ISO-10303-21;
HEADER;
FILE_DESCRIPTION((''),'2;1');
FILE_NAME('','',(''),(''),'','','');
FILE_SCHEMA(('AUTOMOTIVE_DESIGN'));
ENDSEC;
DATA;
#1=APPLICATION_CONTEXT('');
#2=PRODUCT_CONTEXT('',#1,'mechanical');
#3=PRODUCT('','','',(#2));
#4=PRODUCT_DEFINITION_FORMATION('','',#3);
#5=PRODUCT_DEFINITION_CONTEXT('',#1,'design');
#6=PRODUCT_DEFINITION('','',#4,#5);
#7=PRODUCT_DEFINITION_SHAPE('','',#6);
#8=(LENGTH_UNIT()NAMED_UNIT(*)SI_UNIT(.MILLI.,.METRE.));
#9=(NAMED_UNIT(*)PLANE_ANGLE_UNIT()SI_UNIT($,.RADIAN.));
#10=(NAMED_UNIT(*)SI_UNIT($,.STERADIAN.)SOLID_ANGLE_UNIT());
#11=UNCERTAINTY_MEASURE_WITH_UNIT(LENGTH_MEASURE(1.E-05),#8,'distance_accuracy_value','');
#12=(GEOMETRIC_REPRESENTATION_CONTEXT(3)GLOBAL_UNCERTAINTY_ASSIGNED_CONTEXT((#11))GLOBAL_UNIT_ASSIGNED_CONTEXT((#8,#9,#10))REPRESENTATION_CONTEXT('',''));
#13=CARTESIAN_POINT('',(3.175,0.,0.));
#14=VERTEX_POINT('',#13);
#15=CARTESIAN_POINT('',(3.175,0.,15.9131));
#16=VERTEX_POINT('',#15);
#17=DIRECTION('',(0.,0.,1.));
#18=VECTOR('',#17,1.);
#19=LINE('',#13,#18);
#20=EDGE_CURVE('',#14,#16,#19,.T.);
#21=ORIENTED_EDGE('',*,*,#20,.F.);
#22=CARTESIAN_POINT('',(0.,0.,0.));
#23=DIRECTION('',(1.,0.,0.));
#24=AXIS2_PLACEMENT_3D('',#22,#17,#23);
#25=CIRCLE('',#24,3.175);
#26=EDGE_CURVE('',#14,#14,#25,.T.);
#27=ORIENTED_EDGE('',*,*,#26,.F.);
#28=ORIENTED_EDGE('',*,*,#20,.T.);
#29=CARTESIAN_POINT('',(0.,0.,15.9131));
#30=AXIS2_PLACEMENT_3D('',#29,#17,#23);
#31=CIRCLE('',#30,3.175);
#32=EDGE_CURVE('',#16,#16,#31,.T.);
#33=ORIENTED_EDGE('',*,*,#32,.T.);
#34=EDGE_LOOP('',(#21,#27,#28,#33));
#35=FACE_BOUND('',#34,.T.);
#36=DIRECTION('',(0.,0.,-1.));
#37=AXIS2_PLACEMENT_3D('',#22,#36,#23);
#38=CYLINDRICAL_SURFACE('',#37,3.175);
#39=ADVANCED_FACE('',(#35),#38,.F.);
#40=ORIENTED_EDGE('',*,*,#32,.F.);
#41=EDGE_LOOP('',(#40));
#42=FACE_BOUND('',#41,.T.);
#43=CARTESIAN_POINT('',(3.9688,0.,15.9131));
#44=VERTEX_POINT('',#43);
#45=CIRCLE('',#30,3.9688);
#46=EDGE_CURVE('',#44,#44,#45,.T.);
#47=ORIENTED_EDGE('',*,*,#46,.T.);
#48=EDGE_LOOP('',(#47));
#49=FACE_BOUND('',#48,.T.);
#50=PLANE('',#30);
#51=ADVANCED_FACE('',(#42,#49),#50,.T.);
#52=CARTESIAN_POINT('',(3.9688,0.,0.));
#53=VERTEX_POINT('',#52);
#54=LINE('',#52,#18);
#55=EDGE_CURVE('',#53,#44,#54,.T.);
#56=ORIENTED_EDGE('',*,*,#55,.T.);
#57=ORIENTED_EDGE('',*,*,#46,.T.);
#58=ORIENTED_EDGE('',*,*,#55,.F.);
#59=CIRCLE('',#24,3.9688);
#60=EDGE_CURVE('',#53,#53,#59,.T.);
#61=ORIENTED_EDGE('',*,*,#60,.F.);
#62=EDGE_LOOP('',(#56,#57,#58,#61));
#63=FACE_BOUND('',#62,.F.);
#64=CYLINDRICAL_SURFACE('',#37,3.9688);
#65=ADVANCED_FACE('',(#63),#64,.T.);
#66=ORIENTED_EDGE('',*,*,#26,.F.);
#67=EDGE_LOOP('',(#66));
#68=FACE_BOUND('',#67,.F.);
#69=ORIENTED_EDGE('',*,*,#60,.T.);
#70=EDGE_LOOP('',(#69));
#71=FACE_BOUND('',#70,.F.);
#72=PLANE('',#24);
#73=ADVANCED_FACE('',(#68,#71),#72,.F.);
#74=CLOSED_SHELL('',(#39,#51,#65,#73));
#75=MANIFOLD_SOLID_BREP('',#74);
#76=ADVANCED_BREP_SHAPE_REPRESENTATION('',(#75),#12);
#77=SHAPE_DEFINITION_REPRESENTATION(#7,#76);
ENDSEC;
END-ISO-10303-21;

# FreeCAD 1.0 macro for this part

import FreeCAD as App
import Part
import Sketcher
Q = App.Units.Quantity

doc = App.newDocument("Part")
body = doc.addObject("PartDesign::Body", "Body")

# Sketch on XY plane
sketch1 = body.newObject("Sketcher::SketchObject", "Sketch")
sketch1.AttachmentSupport = (doc.getObject("XY_Plane"), [""])
sketch1.MapMode = "FlatFace"
sketch1.addGeometry([
    Part.Circle(App.Vector(0, 0, 0), App.Vector(0, 0, 1), 3.9688),
    Part.Circle(App.Vector(0, 0, 0), App.Vector(0, 0, 1), 3.175),
], False)
sketch1.addConstraint([
    Sketcher.Constraint("Coincident", 0, 3, -1, 1),
    Sketcher.Constraint("Coincident", 1, 3, -1, 1),
    Sketcher.Constraint("Diameter", 1, Q("0.25 in")),
    Sketcher.Constraint("Diameter", 0, Q("0.3125 in")),
])
pad1 = body.newObject("PartDesign::Pad", "Pad")
pad1.Profile = sketch1
pad1.Length = Q("0.6265 in")

doc.recompute()
